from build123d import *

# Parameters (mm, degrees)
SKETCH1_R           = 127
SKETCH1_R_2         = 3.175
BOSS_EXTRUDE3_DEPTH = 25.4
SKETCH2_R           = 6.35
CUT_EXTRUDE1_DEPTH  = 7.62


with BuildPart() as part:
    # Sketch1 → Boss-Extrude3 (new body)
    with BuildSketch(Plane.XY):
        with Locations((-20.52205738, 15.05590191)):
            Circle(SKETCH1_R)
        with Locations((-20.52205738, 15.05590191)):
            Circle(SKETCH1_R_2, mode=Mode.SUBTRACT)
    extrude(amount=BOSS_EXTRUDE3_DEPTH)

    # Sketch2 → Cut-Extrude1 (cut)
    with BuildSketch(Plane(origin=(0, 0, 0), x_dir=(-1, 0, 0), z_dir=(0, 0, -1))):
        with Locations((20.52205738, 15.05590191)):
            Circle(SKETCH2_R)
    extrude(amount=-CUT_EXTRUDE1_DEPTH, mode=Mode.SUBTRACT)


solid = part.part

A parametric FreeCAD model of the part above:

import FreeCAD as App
import Part
import Sketcher
Q = App.Units.Quantity

doc = App.newDocument("Part")
body = doc.addObject("PartDesign::Body", "Body")

# Sketch on XY plane
sketch1 = body.newObject("Sketcher::SketchObject", "Sketch")
sketch1.AttachmentSupport = (doc.getObject("XY_Plane"), [""])
sketch1.MapMode = "FlatFace"
sketch1.addGeometry(Part.Circle(App.Vector(-20.5, 15.1, 0), App.Vector(0, 0, 1), 127), False)
sketch1.addGeometry(Part.Circle(App.Vector(-20.5, 15.1, 0), App.Vector(0, 0, 1), 3.2), False)
sketch1.addConstraint(Sketcher.Constraint("Coincident", 1, 3, 0, 3))
sketch1.addConstraint(Sketcher.Constraint("Diameter", 0, Q("10 in")))
sketch1.addConstraint(Sketcher.Constraint("Diameter", 1, Q("0.25 in")))
sketch1.addConstraint(Sketcher.Constraint("DistanceY", -1, 1, 0, 3, Q("15.055902 mm")))
sketch1.addConstraint(Sketcher.Constraint("DistanceX", 0, 3, -1, 1, Q("20.522057 mm")))
pad1 = body.newObject("PartDesign::Pad", "Pad")
pad1.Profile = sketch1
pad1.Length = Q("1 in")

# Sketch on XY plane
sketch2 = body.newObject("Sketcher::SketchObject", "Sketch001")
sketch2.AttachmentSupport = (doc.getObject("XY_Plane"), [""])
sketch2.MapMode = "FlatFace"
sketch2.addGeometry(Part.Circle(App.Vector(-21, 15, 0), App.Vector(0, 0, 1), 6), False)
sketch2.addConstraint(Sketcher.Constraint("Diameter", 0, Q("0.5 in")))
sketch2.addConstraint(Sketcher.Constraint("DistanceY", -1, 1, 0, 3, Q("15.055902 mm")))
sketch2.addConstraint(Sketcher.Constraint("DistanceX", 0, 3, -1, 1, Q("20.522057 mm")))
pocket1 = body.newObject("PartDesign::Pocket", "Pocket")
pocket1.Profile = sketch2
pocket1.Length = Q("0.3 in")
pocket1.Reversed = True

doc.recompute()
